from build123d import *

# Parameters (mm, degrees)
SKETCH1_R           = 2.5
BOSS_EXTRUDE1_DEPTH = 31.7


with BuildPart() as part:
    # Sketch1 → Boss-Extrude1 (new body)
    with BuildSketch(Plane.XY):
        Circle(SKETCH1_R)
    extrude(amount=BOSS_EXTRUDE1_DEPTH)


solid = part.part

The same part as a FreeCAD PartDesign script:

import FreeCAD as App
import Part
import Sketcher

V = App.Vector

doc = App.newDocument("Part")
body = doc.addObject("PartDesign::Body", "Body")

# Sketch on XY plane
sketch1 = doc.addObject("Sketcher::SketchObject", "Sketch")
body.addObject(sketch1)
sketch1.AttachmentSupport = (doc.XY_Plane, [""])
sketch1.MapMode = "FlatFace"
sketch1.addGeometry(Part.Circle(V(0, 0, 0), V(0, 0, 1), 2.5), False)
sketch1.addConstraint(Sketcher.Constraint("Coincident", 0, 3, -1, 1))
sketch1.addConstraint(Sketcher.Constraint("Diameter", 0, 5.0))
pad1 = doc.addObject("PartDesign::Pad", "Pad")
body.addObject(pad1)
pad1.Profile = sketch1
pad1.Length = 31.7

doc.recompute()
